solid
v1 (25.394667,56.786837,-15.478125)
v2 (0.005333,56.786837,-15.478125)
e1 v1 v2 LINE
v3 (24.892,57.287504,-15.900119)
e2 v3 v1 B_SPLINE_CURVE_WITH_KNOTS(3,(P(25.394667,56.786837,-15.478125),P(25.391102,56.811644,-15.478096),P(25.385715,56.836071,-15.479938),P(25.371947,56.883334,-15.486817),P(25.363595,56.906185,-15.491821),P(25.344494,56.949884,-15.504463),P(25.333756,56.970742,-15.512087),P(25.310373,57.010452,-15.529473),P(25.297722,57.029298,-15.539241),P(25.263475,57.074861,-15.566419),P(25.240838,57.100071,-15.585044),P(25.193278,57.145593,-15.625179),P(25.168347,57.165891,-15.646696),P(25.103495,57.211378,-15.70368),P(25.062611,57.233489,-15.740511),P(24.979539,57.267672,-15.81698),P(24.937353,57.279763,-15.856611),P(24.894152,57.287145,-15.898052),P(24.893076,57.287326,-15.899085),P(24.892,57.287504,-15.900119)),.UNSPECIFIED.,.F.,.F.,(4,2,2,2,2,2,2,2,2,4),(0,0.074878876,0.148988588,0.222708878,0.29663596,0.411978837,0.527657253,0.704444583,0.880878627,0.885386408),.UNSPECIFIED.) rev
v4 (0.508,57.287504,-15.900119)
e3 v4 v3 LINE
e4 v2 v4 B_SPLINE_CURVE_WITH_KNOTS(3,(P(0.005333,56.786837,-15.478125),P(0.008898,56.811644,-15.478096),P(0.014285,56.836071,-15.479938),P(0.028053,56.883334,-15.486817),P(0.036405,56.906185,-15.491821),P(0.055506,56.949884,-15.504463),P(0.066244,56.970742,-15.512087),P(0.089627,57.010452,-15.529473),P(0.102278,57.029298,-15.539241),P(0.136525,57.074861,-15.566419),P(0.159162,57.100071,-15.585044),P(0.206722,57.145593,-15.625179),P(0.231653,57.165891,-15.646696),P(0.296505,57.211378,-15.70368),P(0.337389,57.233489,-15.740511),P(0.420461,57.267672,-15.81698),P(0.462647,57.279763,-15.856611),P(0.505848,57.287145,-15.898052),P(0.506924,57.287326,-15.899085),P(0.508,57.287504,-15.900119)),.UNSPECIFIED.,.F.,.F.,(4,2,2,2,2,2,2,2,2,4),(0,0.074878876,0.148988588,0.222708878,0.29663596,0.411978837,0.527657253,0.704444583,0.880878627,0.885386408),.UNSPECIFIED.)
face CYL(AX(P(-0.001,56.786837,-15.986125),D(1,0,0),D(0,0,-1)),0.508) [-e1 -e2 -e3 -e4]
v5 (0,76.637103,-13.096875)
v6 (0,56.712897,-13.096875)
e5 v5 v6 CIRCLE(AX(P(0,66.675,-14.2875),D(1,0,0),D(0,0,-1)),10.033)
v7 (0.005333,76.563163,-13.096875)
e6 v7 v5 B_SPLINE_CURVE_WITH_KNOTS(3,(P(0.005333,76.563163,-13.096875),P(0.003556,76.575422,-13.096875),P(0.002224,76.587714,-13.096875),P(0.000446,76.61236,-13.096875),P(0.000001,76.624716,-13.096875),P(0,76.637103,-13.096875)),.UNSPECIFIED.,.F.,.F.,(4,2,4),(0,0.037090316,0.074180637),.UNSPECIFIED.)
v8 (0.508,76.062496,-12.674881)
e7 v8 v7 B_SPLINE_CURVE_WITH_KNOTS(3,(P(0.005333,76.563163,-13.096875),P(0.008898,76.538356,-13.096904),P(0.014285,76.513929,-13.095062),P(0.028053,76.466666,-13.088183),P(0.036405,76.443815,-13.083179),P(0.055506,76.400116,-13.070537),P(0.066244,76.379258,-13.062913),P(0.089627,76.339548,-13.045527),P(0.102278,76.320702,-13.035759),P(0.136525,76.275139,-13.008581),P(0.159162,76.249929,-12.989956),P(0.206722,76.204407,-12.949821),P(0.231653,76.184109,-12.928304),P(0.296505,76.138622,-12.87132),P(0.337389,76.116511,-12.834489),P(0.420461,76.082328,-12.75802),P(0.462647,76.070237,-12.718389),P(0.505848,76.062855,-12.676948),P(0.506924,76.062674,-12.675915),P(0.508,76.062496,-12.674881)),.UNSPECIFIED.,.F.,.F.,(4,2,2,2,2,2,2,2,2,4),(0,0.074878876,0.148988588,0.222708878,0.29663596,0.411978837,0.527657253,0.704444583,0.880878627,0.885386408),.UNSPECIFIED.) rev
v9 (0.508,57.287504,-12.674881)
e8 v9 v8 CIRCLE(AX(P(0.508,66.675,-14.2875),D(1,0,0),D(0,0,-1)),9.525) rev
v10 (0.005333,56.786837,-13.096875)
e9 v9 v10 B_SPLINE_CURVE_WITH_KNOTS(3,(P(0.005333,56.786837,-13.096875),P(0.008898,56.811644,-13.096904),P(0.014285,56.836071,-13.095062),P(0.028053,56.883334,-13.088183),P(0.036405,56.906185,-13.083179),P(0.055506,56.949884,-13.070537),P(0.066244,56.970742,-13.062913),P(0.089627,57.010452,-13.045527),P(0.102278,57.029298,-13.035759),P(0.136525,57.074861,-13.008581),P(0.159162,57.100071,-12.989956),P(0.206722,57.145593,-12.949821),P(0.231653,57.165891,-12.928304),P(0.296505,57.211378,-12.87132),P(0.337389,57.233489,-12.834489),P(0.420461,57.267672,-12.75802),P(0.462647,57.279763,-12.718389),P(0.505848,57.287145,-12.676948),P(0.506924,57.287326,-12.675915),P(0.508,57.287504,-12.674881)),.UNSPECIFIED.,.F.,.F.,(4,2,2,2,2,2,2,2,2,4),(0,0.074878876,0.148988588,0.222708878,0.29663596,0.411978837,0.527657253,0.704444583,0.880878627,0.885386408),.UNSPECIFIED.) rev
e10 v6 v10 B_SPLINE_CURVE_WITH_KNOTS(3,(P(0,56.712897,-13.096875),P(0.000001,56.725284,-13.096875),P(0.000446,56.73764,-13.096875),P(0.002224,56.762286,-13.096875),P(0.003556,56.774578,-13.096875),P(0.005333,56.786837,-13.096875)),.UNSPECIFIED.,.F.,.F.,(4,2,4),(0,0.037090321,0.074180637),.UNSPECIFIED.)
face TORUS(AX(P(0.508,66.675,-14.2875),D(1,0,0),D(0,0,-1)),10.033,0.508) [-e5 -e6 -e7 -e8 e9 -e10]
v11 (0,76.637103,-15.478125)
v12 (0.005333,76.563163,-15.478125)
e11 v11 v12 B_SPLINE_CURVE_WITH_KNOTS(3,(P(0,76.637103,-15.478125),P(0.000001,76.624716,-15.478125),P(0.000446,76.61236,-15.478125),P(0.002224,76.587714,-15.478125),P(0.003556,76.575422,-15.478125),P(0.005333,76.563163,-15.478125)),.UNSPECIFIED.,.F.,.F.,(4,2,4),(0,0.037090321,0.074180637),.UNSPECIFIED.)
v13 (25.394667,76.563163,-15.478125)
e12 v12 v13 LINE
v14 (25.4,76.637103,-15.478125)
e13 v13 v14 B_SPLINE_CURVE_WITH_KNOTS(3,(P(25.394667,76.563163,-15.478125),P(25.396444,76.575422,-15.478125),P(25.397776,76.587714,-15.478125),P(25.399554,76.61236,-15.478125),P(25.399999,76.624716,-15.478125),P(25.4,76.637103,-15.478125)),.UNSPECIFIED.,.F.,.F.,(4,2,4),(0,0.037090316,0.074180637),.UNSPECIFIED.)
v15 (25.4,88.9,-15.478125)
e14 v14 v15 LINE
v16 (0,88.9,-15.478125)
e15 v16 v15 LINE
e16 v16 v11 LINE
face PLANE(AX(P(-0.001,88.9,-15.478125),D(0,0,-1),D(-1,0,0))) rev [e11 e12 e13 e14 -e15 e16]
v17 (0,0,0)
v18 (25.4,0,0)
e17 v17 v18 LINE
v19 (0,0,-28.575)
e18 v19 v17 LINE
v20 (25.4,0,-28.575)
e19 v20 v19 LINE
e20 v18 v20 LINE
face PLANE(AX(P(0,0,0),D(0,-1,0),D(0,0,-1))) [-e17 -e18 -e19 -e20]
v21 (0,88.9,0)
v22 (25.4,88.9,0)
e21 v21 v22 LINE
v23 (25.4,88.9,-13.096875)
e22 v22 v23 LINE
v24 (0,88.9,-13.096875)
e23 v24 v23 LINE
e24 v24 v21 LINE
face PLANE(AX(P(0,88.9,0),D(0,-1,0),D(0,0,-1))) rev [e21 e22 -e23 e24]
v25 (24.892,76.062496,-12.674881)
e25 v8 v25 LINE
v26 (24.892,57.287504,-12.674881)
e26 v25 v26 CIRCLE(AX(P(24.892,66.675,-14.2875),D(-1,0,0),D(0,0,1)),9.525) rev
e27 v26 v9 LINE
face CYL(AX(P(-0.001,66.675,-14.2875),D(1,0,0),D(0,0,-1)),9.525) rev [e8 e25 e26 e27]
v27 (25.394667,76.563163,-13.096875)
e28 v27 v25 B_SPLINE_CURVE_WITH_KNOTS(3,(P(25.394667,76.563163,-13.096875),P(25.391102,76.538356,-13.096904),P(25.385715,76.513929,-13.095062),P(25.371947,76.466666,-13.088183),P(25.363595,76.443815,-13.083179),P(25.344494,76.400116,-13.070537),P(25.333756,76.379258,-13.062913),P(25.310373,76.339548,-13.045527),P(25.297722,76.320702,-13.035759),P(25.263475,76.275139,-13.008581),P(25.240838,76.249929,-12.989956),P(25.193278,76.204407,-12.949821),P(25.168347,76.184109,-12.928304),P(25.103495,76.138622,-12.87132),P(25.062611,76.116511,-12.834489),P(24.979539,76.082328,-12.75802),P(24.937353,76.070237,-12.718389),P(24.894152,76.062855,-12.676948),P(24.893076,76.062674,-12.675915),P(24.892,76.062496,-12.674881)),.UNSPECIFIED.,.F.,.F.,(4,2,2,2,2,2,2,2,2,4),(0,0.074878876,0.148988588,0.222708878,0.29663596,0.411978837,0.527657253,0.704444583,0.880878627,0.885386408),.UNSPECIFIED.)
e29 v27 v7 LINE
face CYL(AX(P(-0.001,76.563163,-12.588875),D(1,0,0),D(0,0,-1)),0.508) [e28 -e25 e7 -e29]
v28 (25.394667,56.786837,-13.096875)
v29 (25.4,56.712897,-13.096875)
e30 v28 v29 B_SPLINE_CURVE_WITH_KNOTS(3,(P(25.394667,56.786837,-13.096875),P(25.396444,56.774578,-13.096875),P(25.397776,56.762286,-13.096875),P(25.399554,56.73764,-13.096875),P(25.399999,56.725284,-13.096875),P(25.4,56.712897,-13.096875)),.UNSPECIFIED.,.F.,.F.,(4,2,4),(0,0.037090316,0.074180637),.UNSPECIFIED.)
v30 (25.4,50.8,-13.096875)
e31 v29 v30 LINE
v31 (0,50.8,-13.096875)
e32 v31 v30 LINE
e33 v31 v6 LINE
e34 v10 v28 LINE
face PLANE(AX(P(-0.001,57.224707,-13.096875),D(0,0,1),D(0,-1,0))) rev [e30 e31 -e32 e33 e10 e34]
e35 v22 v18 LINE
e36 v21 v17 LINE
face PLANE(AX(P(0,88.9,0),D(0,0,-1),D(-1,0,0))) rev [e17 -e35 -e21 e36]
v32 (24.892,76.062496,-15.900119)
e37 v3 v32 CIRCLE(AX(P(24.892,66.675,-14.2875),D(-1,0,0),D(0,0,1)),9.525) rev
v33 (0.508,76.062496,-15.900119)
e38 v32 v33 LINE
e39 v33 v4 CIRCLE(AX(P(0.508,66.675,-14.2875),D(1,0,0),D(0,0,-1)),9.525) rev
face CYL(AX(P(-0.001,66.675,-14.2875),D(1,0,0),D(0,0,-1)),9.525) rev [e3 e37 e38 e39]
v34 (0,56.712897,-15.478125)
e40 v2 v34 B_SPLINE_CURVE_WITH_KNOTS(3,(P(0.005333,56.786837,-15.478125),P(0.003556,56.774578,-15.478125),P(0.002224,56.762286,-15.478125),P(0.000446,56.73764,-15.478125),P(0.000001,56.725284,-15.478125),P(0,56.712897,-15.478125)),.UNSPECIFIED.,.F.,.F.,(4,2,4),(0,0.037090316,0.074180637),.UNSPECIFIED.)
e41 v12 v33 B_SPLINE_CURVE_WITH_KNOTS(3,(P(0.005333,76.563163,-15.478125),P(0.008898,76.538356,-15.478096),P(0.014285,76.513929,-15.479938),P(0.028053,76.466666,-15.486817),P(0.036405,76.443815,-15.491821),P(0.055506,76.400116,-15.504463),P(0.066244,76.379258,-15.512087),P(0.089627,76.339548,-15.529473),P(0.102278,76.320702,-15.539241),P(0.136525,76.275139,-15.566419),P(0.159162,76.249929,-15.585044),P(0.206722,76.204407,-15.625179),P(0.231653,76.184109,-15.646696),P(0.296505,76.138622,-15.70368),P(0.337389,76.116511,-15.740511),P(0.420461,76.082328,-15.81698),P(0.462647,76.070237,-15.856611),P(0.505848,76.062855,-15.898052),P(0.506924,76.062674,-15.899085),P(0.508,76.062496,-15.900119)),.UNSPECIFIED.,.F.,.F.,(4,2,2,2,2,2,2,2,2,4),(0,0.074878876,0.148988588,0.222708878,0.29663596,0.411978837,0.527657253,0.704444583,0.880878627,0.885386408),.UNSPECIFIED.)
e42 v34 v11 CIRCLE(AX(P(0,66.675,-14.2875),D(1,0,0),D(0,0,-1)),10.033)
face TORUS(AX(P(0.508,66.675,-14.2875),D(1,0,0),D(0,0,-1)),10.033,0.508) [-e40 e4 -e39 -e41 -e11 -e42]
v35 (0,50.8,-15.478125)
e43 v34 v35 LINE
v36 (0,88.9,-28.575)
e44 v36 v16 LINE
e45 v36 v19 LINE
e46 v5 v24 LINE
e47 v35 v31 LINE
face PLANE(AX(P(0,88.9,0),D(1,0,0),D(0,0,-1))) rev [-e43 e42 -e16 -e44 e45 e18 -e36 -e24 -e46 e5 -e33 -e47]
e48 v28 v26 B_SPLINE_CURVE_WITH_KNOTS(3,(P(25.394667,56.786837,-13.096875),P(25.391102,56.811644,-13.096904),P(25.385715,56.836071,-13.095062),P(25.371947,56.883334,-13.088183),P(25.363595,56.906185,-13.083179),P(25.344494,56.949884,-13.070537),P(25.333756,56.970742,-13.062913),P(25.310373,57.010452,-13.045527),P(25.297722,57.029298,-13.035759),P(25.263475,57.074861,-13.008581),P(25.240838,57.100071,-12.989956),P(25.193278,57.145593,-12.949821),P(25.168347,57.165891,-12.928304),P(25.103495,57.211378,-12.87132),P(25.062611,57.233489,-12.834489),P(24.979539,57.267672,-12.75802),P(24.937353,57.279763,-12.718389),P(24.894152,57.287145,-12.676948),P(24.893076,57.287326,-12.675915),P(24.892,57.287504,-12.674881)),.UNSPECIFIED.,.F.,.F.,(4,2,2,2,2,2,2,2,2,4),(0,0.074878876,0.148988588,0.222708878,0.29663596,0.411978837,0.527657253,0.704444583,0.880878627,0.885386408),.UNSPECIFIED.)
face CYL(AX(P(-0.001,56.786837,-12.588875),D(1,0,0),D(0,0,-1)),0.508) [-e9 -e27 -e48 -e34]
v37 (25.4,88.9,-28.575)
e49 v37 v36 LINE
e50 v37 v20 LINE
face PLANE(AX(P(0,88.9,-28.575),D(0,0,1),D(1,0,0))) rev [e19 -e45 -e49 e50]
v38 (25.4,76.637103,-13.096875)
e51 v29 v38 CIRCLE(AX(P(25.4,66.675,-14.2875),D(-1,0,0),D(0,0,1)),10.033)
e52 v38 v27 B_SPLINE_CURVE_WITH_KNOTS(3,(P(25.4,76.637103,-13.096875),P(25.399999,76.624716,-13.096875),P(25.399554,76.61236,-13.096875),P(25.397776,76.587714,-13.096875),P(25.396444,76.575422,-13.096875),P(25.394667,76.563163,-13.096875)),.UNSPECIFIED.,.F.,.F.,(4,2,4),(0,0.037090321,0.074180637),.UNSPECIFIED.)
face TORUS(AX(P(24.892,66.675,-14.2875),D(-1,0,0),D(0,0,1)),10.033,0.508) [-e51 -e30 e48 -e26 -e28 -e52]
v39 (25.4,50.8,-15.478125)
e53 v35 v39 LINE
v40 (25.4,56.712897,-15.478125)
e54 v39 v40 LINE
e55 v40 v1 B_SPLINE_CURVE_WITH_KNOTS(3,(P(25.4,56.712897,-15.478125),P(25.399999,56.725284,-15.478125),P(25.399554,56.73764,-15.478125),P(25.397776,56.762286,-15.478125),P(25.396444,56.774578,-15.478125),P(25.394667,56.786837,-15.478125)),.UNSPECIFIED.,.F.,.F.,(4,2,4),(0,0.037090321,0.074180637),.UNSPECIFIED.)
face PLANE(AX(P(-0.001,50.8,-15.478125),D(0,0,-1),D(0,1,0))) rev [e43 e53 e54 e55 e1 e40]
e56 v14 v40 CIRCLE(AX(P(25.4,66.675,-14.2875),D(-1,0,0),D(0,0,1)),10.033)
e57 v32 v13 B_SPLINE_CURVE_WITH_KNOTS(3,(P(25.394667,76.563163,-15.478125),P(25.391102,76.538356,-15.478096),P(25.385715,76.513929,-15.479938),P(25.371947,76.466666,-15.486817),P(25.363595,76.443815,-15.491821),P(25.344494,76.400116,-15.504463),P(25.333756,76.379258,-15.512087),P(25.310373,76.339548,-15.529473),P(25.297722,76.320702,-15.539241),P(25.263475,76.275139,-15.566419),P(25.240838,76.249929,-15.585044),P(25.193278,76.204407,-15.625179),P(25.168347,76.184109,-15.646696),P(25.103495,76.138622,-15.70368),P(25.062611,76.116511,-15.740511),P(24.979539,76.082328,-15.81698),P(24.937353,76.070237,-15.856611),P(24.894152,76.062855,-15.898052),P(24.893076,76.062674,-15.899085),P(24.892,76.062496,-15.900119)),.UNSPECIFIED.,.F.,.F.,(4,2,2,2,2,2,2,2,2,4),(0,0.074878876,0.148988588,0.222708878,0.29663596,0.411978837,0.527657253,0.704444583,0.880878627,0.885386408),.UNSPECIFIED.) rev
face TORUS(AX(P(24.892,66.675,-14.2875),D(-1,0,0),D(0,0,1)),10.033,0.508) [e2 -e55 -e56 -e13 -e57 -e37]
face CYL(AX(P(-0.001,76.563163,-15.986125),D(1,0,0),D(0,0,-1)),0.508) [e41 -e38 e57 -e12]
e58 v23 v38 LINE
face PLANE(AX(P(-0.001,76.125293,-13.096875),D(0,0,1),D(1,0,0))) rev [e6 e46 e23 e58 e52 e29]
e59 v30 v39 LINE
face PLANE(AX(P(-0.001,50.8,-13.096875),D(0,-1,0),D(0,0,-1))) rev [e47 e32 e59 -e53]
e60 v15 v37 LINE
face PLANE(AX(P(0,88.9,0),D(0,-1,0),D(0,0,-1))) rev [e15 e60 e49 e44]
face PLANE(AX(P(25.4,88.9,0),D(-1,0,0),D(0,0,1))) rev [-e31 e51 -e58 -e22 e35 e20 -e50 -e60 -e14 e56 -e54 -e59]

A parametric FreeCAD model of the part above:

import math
import FreeCAD as App
import Part
import Sketcher

V = App.Vector
Q = App.Units.Quantity


def edges_at(feature, points):
    """Names of the edges that pass closest to the given points."""
    edges = feature.Shape.Edges
    near = lambda p: min(range(len(edges)), key=lambda i: edges[i].distToShape(Part.Vertex(*p))[0])
    return sorted({f"Edge{near(p) + 1}" for p in points})


def add_polygon(sketch, points):
    """Adds a closed chain of lines whose ends are joined by coincident constraints."""
    first, n = sketch.GeometryCount, len(points)
    for a, b in zip(points, points[1:] + points[:1]):
        sketch.addGeometry(Part.LineSegment(App.Vector(*a, 0), App.Vector(*b, 0)), False)
    for i in range(n):
        sketch.addConstraint(Sketcher.Constraint("Coincident", first + i, 2, first + (i + 1) % n, 1))

doc = App.newDocument("Part")
params = doc.addObject("Spreadsheet::Sheet", "Params")
for row, (alias, value) in enumerate([
    ("sketch1_width", "1 in"),
    ("sketch1_height", "1.125 in"),
    ("pad1_length", "3.5 in"),
    ("sketch2_radius", "0.375 in"),
    ("sketch2_height", "0.09375 in"),
    ("fillet_radius", "0.02 in"),
], start=1):
    params.set(f"A{row}", alias)
    params.set(f"B{row}", "=" + value)
    params.setAlias(f"B{row}", alias)

body = doc.addObject("PartDesign::Body", "Body")

sketch1 = body.newObject("Sketcher::SketchObject", "Sketch")
sketch1.AttachmentSupport = (doc.getObject("XZ_Plane"), [""])
sketch1.MapMode = "FlatFace"
add_polygon(sketch1, [(0, -29), (0, 0), (25, 0), (25, -29)])
sketch1.addConstraint(Sketcher.Constraint("Vertical", 0))
sketch1.addConstraint(Sketcher.Constraint("Horizontal", 1))
sketch1.addConstraint(Sketcher.Constraint("Vertical", 2))
sketch1.addConstraint(Sketcher.Constraint("Horizontal", 3))
sketch1.addConstraint(Sketcher.Constraint("Coincident", 0, 2, -1, 1))
sketch1.addConstraint(Sketcher.Constraint("DistanceX", 1, 1, 1, 2, Q("1 in")))
sketch1.addConstraint(Sketcher.Constraint("DistanceY", 0, 1, 0, 2, Q("1.125 in")))
sketch1.setExpression("Constraints[9]", "Params.sketch1_width")
sketch1.setExpression("Constraints[10]", "Params.sketch1_height")
pad1 = body.newObject("PartDesign::Pad", "Pad")
pad1.Profile = sketch1
pad1.setExpression("Length", "Params.pad1_length")
pad1.Reversed = True

sketch2 = body.newObject("Sketcher::SketchObject", "Sketch001")
sketch2.AttachmentSupport = (doc.getObject("YZ_Plane"), [""])
sketch2.MapMode = "FlatFace"
sketch2.AttachmentOffset = App.Placement(V(0, 0, 1 * 25.4), App.Rotation())
sketch2.addGeometry(Part.LineSegment(V(50.8, -13.1, 0), V(50.8, -15.5, 0)), False)
sketch2.addGeometry(Part.LineSegment(V(50.8, -15.5, 0), V(57.2, -15.5, 0)), False)
sketch2.addGeometry(Part.ArcOfCircle(Part.Circle(V(66.7, -14.3, 0), V(0, 0, 1), 9.5), math.radians(-173), math.radians(-7)), False)
sketch2.addGeometry(Part.LineSegment(V(76.1, -15.5, 0), V(88.9, -15.5, 0)), False)
sketch2.addGeometry(Part.LineSegment(V(88.9, -15.5, 0), V(88.9, -13.1, 0)), False)
sketch2.addGeometry(Part.LineSegment(V(88.9, -13.1, 0), V(76.1, -13.1, 0)), False)
sketch2.addGeometry(Part.ArcOfCircle(Part.Circle(V(66.7, -14.3, 0), V(0, 0, 1), 9.5), math.radians(7), math.radians(173)), False)
sketch2.addGeometry(Part.LineSegment(V(57.2, -13.1, 0), V(50.8, -13.1, 0)), False)
sketch2.addConstraint(Sketcher.Constraint("Coincident", 0, 2, 1, 1))
sketch2.addConstraint(Sketcher.Constraint("Coincident", 1, 2, 2, 1))
sketch2.addConstraint(Sketcher.Constraint("Coincident", 2, 2, 3, 1))
sketch2.addConstraint(Sketcher.Constraint("Coincident", 3, 2, 4, 1))
sketch2.addConstraint(Sketcher.Constraint("Coincident", 4, 2, 5, 1))
sketch2.addConstraint(Sketcher.Constraint("Coincident", 5, 2, 6, 1))
sketch2.addConstraint(Sketcher.Constraint("Coincident", 6, 2, 7, 1))
sketch2.addConstraint(Sketcher.Constraint("Coincident", 7, 2, 0, 1))
sketch2.addConstraint(Sketcher.Constraint("Vertical", 0))
sketch2.addConstraint(Sketcher.Constraint("Horizontal", 1))
sketch2.addConstraint(Sketcher.Constraint("Horizontal", 3))
sketch2.addConstraint(Sketcher.Constraint("Vertical", 4))
sketch2.addConstraint(Sketcher.Constraint("Horizontal", 5))
sketch2.addConstraint(Sketcher.Constraint("Horizontal", 7))
sketch2.addConstraint(Sketcher.Constraint("Coincident", 6, 3, 2, 3))
sketch2.addConstraint(Sketcher.Constraint("Equal", 2, 6))
sketch2.addConstraint(Sketcher.Constraint("Horizontal", 1, 2, 2, 2))
sketch2.addConstraint(Sketcher.Constraint("Horizontal", 5, 2, 6, 2))
sketch2.addConstraint(Sketcher.Constraint("Vertical", 2, 2, 5, 2))
sketch2.addConstraint(Sketcher.Constraint("DistanceX", -1, 1, 0, 2, Q("2 in")))
sketch2.addConstraint(Sketcher.Constraint("Radius", 2, Q("0.375 in")))
sketch2.addConstraint(Sketcher.Constraint("DistanceX", -1, 1, 3, 2, Q("3.5 in")))
sketch2.addConstraint(Sketcher.Constraint("DistanceY", 0, 2, 0, 1, Q("0.09375 in")))
sketch2.addConstraint(Sketcher.Constraint("DistanceX", -1, 1, 2, 3, Q("2.625 in")))
sketch2.addConstraint(Sketcher.Constraint("DistanceY", 2, 3, -1, 1, Q("0.5625 in")))
sketch2.setExpression("Constraints[20]", "Params.sketch2_radius")
sketch2.setExpression("Constraints[22]", "Params.sketch2_height")
pocket1 = body.newObject("PartDesign::Pocket", "Pocket")
pocket1.Profile = sketch2
pocket1.Type = "UpToFirst"
doc.recompute()

fillet = body.newObject("PartDesign::Fillet", "Fillet")
fillet.Base = (pocket1, edges_at(pocket1, [
    (12.7, 57.225, -13.097),
    (12.7, 76.125, -13.097),
    (12.7, 76.125, -15.478),
    (12.7, 57.225, -15.478),
    (25.4, 66.675, -23.812),
    (25.4, 66.675, -4.763),
    (0, 66.675, -4.763),
    (0, 66.675, -23.812),
]))
fillet.setExpression("Radius", "Params.fillet_radius")

doc.recompute()
